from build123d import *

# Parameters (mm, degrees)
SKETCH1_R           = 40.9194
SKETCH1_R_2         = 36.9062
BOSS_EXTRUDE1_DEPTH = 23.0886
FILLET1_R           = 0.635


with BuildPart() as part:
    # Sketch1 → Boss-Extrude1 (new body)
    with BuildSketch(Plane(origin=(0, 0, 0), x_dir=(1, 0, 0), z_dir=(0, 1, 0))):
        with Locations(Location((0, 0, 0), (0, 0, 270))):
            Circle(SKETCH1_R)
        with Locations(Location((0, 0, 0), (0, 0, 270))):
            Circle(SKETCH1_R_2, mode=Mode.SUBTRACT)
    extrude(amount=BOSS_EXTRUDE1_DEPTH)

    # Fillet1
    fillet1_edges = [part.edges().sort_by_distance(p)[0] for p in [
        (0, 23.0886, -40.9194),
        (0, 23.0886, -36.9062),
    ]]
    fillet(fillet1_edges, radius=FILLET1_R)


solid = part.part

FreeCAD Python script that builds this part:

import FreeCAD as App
import Part
import Sketcher
from FreeCAD import Vector
Q = App.Units.Quantity


def edges_at(feature, points):
    """Names of the edges that pass closest to the given points."""
    edges = feature.Shape.Edges
    near = lambda p: min(range(len(edges)), key=lambda i: edges[i].distToShape(Part.Vertex(*p))[0])
    return sorted({f"Edge{near(p) + 1}" for p in points})

doc = App.newDocument("Part")
body = doc.addObject("PartDesign::Body", "Body")

# Sketch on XZ plane
sketch1 = doc.addObject("Sketcher::SketchObject", "Sketch")
body.addObject(sketch1)
sketch1.AttachmentSupport = (doc.XZ_Plane, [""])
sketch1.MapMode = "FlatFace"
sketch1.addGeometry([
    Part.Circle(Vector(0, 0, 0), Vector(0, 0, 1), 41),
    Part.Circle(Vector(0, 0, 0), Vector(0, 0, 1), 37),
], False)
sketch1.addConstraint([
    Sketcher.Constraint("Coincident", 0, 3, -1, 1),
    Sketcher.Constraint("Coincident", 1, 3, -1, 1),
    Sketcher.Constraint("Diameter", 0, Q("3.222 in")),
    Sketcher.Constraint("Diameter", 1, Q("2.906 in")),
])
pad1 = doc.addObject("PartDesign::Pad", "Pad")
body.addObject(pad1)
pad1.Profile = sketch1
pad1.Length = Q("0.909 in")
pad1.Reversed = True
doc.recompute()

fillet = doc.addObject("PartDesign::Fillet", "Fillet")
body.addObject(fillet)
fillet.Base = (pad1, edges_at(pad1, [(0, 23.089, -40.919), (0, 23.089, -36.906)]))
fillet.Radius = Q("0.025 in")

doc.recompute()
